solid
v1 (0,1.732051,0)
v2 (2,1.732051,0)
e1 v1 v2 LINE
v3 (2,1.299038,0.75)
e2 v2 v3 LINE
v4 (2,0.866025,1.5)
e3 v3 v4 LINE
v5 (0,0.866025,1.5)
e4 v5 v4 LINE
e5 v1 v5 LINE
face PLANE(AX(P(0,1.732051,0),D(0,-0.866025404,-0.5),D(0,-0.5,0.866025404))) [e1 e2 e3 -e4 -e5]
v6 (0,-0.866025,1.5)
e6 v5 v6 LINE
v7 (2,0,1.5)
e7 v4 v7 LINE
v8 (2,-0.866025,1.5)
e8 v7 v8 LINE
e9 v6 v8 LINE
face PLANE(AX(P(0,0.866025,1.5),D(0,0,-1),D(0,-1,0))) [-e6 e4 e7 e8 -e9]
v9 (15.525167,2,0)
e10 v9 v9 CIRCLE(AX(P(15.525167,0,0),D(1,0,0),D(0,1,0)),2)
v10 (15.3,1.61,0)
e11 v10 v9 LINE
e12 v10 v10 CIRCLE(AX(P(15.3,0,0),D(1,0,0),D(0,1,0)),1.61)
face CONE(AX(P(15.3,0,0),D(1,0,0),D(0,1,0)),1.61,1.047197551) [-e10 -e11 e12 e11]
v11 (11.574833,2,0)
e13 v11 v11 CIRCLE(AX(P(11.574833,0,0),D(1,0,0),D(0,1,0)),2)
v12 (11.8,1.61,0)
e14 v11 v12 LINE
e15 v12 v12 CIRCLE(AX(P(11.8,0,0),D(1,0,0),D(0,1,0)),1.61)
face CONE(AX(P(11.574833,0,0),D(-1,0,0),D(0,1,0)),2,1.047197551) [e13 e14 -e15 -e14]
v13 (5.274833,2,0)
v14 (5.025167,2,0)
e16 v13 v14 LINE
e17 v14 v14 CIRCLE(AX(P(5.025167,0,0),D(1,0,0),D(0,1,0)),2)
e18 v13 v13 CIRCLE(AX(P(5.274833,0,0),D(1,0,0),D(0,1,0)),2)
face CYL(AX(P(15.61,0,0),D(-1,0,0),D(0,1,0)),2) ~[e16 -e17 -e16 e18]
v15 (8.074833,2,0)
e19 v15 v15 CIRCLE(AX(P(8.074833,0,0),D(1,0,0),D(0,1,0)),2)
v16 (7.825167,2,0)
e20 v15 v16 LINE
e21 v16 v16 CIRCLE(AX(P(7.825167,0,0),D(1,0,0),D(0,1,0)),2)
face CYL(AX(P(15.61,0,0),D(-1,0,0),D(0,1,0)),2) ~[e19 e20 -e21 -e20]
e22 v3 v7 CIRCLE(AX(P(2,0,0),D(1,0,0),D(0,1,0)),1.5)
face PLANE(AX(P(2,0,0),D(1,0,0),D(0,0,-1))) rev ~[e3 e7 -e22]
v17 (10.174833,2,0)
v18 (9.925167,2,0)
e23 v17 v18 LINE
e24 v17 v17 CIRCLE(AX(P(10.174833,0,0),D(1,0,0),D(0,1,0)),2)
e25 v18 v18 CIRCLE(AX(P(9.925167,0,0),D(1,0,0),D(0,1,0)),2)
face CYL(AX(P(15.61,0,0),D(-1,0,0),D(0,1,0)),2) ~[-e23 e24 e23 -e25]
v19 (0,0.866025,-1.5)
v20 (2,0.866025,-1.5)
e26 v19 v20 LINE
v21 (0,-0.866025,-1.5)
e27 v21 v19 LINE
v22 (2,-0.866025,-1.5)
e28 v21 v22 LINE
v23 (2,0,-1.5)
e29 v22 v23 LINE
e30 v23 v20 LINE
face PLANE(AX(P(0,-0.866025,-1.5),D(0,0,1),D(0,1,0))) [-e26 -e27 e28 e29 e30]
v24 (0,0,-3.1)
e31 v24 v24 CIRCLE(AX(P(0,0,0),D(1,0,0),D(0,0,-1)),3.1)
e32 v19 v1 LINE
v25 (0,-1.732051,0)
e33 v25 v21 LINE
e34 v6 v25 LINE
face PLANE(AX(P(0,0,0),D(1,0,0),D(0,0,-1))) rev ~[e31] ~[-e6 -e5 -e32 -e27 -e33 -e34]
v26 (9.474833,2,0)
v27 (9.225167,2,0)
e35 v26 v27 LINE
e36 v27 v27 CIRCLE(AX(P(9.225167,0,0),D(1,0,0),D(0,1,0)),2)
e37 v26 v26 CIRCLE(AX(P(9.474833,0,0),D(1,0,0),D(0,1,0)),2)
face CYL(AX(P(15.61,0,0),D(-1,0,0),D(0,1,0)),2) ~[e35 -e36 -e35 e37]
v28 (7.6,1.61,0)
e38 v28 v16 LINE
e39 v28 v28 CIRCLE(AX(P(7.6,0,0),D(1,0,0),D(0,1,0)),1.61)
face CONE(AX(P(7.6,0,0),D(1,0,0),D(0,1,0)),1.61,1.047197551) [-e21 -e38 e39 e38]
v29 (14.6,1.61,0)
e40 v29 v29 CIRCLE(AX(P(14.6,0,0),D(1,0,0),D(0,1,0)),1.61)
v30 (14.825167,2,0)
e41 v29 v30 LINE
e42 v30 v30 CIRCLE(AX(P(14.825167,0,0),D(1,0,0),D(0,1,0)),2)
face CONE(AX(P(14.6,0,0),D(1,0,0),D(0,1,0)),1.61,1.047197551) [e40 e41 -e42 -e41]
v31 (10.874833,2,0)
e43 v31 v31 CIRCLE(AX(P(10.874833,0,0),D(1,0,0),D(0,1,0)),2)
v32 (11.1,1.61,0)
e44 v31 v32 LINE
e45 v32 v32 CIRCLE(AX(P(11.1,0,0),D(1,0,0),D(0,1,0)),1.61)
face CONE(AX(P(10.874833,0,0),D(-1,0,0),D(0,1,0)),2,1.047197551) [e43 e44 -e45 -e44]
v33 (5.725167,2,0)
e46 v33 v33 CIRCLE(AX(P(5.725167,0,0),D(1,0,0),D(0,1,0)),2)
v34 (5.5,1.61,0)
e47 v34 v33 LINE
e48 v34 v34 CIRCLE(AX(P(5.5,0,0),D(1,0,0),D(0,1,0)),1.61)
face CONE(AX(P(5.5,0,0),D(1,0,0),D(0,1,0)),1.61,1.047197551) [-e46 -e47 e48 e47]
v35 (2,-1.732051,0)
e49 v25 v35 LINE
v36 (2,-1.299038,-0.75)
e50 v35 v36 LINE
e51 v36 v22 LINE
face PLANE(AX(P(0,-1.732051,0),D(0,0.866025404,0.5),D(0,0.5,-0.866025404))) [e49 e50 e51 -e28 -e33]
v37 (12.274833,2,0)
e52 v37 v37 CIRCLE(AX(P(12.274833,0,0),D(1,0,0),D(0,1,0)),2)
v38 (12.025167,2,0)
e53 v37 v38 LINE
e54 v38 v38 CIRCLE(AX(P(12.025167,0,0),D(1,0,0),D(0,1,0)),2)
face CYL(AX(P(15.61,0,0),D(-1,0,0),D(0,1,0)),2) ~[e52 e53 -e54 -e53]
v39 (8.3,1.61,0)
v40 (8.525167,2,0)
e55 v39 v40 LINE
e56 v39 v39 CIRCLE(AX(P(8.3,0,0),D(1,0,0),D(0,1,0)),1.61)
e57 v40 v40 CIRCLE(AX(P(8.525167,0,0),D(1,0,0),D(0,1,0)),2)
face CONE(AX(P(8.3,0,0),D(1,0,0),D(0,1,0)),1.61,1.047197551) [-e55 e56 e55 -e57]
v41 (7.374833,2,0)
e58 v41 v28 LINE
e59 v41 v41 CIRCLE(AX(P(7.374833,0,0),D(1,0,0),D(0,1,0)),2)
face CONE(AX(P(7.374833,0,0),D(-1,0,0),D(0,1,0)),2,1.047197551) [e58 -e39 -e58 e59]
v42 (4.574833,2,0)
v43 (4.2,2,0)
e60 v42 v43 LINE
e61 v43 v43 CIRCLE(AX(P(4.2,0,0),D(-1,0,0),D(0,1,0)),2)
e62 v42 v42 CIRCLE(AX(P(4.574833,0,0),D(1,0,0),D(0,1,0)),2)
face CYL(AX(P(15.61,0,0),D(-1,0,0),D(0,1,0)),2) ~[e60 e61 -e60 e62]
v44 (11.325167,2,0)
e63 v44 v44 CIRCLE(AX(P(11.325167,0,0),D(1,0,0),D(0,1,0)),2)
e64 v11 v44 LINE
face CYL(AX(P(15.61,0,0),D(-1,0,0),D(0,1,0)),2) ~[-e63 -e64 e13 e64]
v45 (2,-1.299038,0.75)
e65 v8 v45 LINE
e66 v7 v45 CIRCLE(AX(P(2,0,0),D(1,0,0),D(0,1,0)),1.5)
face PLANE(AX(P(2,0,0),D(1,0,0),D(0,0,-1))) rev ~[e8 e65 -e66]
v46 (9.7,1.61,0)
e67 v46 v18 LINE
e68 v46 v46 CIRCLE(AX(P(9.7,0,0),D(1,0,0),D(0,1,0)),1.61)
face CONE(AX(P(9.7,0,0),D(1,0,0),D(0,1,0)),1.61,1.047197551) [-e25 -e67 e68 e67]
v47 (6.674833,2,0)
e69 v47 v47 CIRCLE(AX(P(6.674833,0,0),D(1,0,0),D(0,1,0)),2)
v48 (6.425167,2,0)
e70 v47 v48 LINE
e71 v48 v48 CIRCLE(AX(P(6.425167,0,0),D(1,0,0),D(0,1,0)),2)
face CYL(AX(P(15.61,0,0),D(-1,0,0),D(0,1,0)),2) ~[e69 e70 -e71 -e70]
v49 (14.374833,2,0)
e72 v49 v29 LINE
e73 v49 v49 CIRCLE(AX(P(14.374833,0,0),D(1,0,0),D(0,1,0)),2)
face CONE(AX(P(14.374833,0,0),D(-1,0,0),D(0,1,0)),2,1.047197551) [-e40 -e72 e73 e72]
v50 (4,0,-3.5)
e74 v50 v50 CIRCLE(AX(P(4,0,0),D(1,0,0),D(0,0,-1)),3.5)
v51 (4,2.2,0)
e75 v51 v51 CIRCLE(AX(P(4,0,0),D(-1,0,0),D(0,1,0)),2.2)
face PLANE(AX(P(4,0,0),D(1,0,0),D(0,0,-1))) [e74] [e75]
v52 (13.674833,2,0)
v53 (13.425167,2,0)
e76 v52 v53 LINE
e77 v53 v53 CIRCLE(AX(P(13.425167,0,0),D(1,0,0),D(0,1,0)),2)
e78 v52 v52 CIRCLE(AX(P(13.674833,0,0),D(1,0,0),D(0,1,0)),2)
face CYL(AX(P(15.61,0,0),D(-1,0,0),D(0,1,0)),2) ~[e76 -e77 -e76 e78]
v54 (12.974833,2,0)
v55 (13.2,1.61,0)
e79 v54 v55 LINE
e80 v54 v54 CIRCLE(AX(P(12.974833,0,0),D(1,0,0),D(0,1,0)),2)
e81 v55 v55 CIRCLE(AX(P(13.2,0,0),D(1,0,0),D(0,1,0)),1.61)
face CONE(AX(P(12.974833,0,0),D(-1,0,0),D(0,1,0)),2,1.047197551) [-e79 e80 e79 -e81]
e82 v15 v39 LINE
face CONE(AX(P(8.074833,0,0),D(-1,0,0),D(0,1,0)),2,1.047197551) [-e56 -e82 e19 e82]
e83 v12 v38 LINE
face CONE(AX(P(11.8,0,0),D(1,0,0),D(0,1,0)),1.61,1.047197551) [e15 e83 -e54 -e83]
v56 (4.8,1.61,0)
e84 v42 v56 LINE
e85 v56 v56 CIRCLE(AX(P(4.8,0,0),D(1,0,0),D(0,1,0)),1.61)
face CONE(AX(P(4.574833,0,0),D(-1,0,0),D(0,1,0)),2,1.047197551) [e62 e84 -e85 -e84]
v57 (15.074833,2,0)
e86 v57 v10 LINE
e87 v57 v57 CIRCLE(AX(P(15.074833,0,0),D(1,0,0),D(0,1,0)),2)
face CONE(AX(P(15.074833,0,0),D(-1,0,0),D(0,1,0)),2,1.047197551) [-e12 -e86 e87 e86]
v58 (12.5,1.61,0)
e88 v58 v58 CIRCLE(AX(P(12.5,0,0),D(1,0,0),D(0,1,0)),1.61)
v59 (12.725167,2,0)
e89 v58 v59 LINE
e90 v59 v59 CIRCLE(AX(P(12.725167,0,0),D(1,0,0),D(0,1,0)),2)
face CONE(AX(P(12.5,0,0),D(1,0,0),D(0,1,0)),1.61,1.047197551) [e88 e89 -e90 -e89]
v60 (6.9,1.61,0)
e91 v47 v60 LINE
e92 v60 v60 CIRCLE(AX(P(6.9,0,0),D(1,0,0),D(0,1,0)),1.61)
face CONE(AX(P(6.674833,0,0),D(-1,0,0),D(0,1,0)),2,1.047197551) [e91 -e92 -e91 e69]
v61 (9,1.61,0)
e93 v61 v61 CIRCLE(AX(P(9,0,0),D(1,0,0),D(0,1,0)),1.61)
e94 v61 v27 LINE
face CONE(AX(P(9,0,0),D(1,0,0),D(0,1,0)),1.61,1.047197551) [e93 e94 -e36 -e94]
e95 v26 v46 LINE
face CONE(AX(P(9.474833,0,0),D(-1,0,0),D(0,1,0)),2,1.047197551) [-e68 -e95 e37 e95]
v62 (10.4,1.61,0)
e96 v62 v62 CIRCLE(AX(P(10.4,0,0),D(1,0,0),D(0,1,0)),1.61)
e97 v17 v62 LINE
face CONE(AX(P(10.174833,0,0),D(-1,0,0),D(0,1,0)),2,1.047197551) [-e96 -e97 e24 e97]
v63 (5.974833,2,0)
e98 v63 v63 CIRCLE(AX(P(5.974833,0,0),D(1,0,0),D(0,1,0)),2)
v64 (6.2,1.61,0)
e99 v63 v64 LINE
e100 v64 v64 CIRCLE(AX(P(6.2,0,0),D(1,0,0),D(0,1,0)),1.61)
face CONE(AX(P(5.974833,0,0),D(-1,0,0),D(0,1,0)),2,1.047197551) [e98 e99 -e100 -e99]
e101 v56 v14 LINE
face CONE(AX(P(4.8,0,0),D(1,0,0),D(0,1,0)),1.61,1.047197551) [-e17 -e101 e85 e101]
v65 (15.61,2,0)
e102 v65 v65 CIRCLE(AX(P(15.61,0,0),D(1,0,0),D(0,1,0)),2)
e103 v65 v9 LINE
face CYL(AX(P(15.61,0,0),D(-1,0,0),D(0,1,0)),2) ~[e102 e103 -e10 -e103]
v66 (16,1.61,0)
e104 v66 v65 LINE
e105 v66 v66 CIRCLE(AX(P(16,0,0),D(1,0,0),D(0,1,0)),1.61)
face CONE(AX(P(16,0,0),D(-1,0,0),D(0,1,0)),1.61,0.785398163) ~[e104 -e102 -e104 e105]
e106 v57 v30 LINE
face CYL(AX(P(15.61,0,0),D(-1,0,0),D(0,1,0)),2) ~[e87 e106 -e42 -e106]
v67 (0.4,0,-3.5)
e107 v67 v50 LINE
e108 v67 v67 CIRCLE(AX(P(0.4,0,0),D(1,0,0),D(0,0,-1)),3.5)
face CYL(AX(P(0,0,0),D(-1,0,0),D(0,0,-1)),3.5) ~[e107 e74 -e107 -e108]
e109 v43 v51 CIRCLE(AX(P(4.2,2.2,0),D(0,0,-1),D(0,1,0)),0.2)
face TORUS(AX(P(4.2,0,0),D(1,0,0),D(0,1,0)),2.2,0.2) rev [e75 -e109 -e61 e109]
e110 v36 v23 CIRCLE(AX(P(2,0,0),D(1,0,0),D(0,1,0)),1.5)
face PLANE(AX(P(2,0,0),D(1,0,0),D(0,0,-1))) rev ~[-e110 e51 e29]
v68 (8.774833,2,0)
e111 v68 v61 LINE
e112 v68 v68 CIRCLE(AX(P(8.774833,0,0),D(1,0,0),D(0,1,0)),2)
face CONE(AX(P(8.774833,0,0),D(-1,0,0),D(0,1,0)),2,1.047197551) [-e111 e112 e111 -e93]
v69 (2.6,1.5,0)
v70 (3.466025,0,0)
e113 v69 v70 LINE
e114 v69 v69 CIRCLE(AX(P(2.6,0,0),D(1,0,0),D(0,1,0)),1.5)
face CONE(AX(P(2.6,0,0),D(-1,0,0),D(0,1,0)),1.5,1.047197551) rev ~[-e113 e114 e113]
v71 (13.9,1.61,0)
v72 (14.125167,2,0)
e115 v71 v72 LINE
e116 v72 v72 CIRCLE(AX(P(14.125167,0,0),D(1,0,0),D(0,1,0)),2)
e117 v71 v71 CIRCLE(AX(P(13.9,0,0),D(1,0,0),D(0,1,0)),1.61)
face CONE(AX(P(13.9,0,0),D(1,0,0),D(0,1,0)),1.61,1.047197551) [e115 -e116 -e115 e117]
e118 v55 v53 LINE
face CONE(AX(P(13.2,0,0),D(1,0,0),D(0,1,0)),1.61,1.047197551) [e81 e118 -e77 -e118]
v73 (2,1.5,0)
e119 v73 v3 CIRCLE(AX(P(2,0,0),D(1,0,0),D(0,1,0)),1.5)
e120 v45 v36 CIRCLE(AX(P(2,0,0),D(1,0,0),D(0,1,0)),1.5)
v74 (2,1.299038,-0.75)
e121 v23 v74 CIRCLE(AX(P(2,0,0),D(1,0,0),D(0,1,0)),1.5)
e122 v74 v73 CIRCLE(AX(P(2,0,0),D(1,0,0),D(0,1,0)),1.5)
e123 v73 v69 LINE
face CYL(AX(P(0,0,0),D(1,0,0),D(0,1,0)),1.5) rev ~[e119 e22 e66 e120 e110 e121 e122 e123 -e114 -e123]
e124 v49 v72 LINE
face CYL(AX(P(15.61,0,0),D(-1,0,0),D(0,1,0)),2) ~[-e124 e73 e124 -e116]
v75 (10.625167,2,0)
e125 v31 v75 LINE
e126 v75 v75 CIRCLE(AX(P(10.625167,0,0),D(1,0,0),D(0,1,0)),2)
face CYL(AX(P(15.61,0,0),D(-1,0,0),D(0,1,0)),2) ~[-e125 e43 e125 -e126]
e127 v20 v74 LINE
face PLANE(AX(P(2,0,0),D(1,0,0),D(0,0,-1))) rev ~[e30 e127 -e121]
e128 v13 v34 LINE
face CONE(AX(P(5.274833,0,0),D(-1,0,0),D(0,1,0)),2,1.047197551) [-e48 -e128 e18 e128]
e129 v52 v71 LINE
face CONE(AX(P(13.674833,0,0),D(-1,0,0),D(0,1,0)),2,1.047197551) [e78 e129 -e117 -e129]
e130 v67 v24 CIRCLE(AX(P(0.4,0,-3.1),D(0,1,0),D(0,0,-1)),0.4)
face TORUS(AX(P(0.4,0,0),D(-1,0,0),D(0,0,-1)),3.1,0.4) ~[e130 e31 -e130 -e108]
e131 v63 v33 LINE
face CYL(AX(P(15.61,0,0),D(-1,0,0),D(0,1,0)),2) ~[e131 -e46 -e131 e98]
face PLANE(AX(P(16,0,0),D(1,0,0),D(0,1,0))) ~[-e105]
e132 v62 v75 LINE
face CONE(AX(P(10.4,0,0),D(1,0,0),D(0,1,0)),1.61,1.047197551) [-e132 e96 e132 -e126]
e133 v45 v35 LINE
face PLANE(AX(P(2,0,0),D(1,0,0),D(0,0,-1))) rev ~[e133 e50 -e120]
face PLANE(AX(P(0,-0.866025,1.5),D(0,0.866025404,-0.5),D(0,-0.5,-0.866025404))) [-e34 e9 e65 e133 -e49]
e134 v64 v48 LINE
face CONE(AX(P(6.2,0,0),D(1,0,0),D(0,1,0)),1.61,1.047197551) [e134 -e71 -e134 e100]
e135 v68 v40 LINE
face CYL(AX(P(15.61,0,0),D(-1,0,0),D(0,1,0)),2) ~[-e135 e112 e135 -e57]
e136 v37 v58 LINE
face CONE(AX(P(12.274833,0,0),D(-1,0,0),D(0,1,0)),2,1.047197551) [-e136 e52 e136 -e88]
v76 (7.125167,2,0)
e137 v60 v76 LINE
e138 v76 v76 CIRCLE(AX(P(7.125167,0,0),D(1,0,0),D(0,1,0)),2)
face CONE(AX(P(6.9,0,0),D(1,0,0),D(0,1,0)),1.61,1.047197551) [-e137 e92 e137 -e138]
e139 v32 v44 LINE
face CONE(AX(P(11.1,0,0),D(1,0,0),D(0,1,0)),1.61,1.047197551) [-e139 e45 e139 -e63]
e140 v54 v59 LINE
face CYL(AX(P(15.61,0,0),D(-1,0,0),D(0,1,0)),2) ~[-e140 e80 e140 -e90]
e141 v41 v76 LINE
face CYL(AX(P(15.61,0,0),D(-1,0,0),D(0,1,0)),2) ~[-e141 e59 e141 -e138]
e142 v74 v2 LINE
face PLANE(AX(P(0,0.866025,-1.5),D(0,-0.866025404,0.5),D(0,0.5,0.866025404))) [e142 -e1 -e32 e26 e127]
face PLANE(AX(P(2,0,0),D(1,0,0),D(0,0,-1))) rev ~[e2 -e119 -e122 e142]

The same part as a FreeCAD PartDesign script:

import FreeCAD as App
import Part
import Sketcher
from FreeCAD import Vector
Q = App.Units.Quantity


def edges_at(feature, points):
    """Names of the edges that pass closest to the given points."""
    edges = feature.Shape.Edges
    near = lambda p: min(range(len(edges)), key=lambda i: edges[i].distToShape(Part.Vertex(*p))[0])
    return sorted({f"Edge{near(p) + 1}" for p in points})

doc = App.newDocument("Part")
body = doc.addObject("PartDesign::Body", "Body")

sketch1 = body.newObject("Sketcher::SketchObject", "Sketch")
sketch1.AttachmentSupport = (doc.getObject("YZ_Plane"), [""])
sketch1.MapMode = "FlatFace"
sketch1.addGeometry(Part.Circle(Vector(0, 0, 0), Vector(0, 0, 1), 3.5), False)
sketch1.addConstraint(Sketcher.Constraint("Coincident", 0, 3, -1, 1))
sketch1.addConstraint(Sketcher.Constraint("Diameter", 0, Q("7 mm")))
pad1 = body.newObject("PartDesign::Pad", "Pad")
pad1.Profile = sketch1
pad1.Length = 4

sketch2 = body.newObject("Sketcher::SketchObject", "Sketch001")
sketch2.AttachmentSupport = (doc.getObject("XY_Plane"), [""])
sketch2.MapMode = "FlatFace"
sketch2.addGeometry(Part.LineSegment(Vector(0, 0, 0), Vector(16, 0, 0)), False)
sketch2.addGeometry(Part.LineSegment(Vector(16, 0, 0), Vector(16, 1.6, 0)), False)
sketch2.addGeometry(Part.LineSegment(Vector(16, 1.6, 0), Vector(15.6, 2, 0)), False)
sketch2.addGeometry(Part.LineSegment(Vector(15.6, 2, 0), Vector(0, 2, 0)), False)
sketch2.addGeometry(Part.LineSegment(Vector(0, 2, 0), Vector(0, 0, 0)), False)
sketch2.addConstraint(Sketcher.Constraint("Coincident", 0, 2, 1, 1))
sketch2.addConstraint(Sketcher.Constraint("Coincident", 1, 2, 2, 1))
sketch2.addConstraint(Sketcher.Constraint("Coincident", 2, 2, 3, 1))
sketch2.addConstraint(Sketcher.Constraint("Coincident", 3, 2, 4, 1))
sketch2.addConstraint(Sketcher.Constraint("Coincident", 4, 2, 0, 1))
sketch2.addConstraint(Sketcher.Constraint("Horizontal", 0))
sketch2.addConstraint(Sketcher.Constraint("Vertical", 1))
sketch2.addConstraint(Sketcher.Constraint("Horizontal", 3))
sketch2.addConstraint(Sketcher.Constraint("Vertical", 4))
sketch2.addConstraint(Sketcher.Constraint("Coincident", 4, 2, -1, 1))
sketch2.addConstraint(Sketcher.Constraint("DistanceX", 0, 1, 0, 2, Q("16 mm")))
sketch2.addConstraint(Sketcher.Constraint("DistanceY", 4, 2, 4, 1, Q("2 mm")))
sketch2.addConstraint(Sketcher.Constraint("Angle", 2, Q("135 deg")))
sketch2.addConstraint(Sketcher.Constraint("DistanceX", 3, 2, 3, 1, Q("15.61 mm")))
revolution = body.newObject("PartDesign::Revolution", "Revolution")
revolution.Profile = sketch2
revolution.ReferenceAxis = (sketch2, ["H_Axis"])
revolution.Angle = 360

sketch3 = body.newObject("Sketcher::SketchObject", "Sketch002")
sketch3.AttachmentSupport = (doc.getObject("YZ_Plane"), [""])
sketch3.MapMode = "FlatFace"
sketch3.addGeometry(Part.LineSegment(Vector(1.7, 0, 0), Vector(0.9, 1.5, 0)), False)
sketch3.addGeometry(Part.LineSegment(Vector(0.9, 1.5, 0), Vector(-0.9, 1.5, 0)), False)
sketch3.addGeometry(Part.LineSegment(Vector(-0.9, 1.5, 0), Vector(-1.7, 0, 0)), False)
sketch3.addGeometry(Part.LineSegment(Vector(-1.7, 0, 0), Vector(-0.9, -1.5, 0)), False)
sketch3.addGeometry(Part.LineSegment(Vector(-0.9, -1.5, 0), Vector(0.9, -1.5, 0)), False)
sketch3.addGeometry(Part.LineSegment(Vector(0.9, -1.5, 0), Vector(1.7, 0, 0)), False)
sketch3.addConstraint(Sketcher.Constraint("Coincident", 0, 2, 1, 1))
sketch3.addConstraint(Sketcher.Constraint("Coincident", 1, 2, 2, 1))
sketch3.addConstraint(Sketcher.Constraint("Coincident", 2, 2, 3, 1))
sketch3.addConstraint(Sketcher.Constraint("Coincident", 3, 2, 4, 1))
sketch3.addConstraint(Sketcher.Constraint("Coincident", 4, 2, 5, 1))
sketch3.addConstraint(Sketcher.Constraint("Coincident", 5, 2, 0, 1))
sketch3.addConstraint(Sketcher.Constraint("Horizontal", 1))
sketch3.addConstraint(Sketcher.Constraint("Horizontal", 4))
sketch3.addConstraint(Sketcher.Constraint("Symmetric", 0, 2, 3, 2, -1, 1))
sketch3.addConstraint(Sketcher.Constraint("Symmetric", 2, 2, 5, 2, -1, 1))
sketch3.addConstraint(Sketcher.Constraint("PointOnObject", 2, 2, -1))
sketch3.addConstraint(Sketcher.Constraint("Parallel", 2, 5))
sketch3.addConstraint(Sketcher.Constraint("Vertical", 1, 2, 3, 2))
sketch3.addConstraint(Sketcher.Constraint("Angle", 0, Q("120 deg")))
sketch3.addConstraint(Sketcher.Constraint("DistanceY", 3, 2, 1, 2, Q("3 mm")))
sketch3.addConstraint(Sketcher.Constraint("DistanceX", 1, 2, 1, 1, Q("1.732051 mm")))
pocket1 = body.newObject("PartDesign::Pocket", "Pocket")
pocket1.Profile = sketch3
pocket1.Length = 2
pocket1.Reversed = True

sketch4 = body.newObject("Sketcher::SketchObject", "Sketch003")
sketch4.AttachmentSupport = (doc.getObject("XY_Plane"), [""])
sketch4.MapMode = "FlatFace"
sketch4.addGeometry(Part.LineSegment(Vector(2.6, 1.5, 0), Vector(0, 1.5, 0)), False)
sketch4.addGeometry(Part.LineSegment(Vector(0, 1.5, 0), Vector(0, 0, 0)), False)
sketch4.addGeometry(Part.LineSegment(Vector(0, 0, 0), Vector(3.5, 0, 0)), False)
sketch4.addGeometry(Part.LineSegment(Vector(3.5, 0, 0), Vector(2.6, 1.5, 0)), False)
sketch4.addConstraint(Sketcher.Constraint("Coincident", 0, 2, 1, 1))
sketch4.addConstraint(Sketcher.Constraint("Coincident", 1, 2, 2, 1))
sketch4.addConstraint(Sketcher.Constraint("Coincident", 2, 2, 3, 1))
sketch4.addConstraint(Sketcher.Constraint("Coincident", 3, 2, 0, 1))
sketch4.addConstraint(Sketcher.Constraint("Horizontal", 0))
sketch4.addConstraint(Sketcher.Constraint("Vertical", 1))
sketch4.addConstraint(Sketcher.Constraint("Horizontal", 2))
sketch4.addConstraint(Sketcher.Constraint("Coincident", 1, 2, -1, 1))
sketch4.addConstraint(Sketcher.Constraint("Angle", 3, Q("120 deg")))
sketch4.addConstraint(Sketcher.Constraint("DistanceX", 0, 2, 0, 1, Q("2.6 mm")))
sketch4.addConstraint(Sketcher.Constraint("DistanceY", 1, 2, 1, 1, Q("1.5 mm")))
groove = body.newObject("PartDesign::Groove", "Groove")
groove.Profile = sketch4
groove.ReferenceAxis = (sketch4, ["H_Axis"])
groove.Angle = 360
doc.recompute()

fillet = body.newObject("PartDesign::Fillet", "Fillet")
fillet.Base = (groove, edges_at(groove, [(4, -2, 0)]))
fillet.Radius = 0.2
doc.recompute()

fillet2 = body.newObject("PartDesign::Fillet", "Fillet001")
fillet2.Base = (fillet, edges_at(fillet, [(0, 0, 3.5)]))
fillet2.Radius = 0.4

sketch5 = body.newObject("Sketcher::SketchObject", "Sketch004")
sketch5.AttachmentSupport = (doc.getObject("XY_Plane"), [""])
sketch5.MapMode = "FlatFace"
sketch5.addGeometry(Part.LineSegment(Vector(15.07, 2.45, 0), Vector(15.07, 2, 0)), False)
sketch5.addGeometry(Part.LineSegment(Vector(15.07, 2, 0), Vector(15.3, 1.61, 0)), False)
sketch5.addGeometry(Part.LineSegment(Vector(15.3, 1.61, 0), Vector(15.53, 2, 0)), False)
sketch5.addGeometry(Part.LineSegment(Vector(15.53, 2, 0), Vector(15.53, 2.45, 0)), False)
sketch5.addGeometry(Part.LineSegment(Vector(15.53, 2.45, 0), Vector(15.07, 2.45, 0)), False)
sketch5.addConstraint(Sketcher.Constraint("Coincident", 0, 2, 1, 1))
sketch5.addConstraint(Sketcher.Constraint("Coincident", 1, 2, 2, 1))
sketch5.addConstraint(Sketcher.Constraint("Coincident", 2, 2, 3, 1))
sketch5.addConstraint(Sketcher.Constraint("Coincident", 3, 2, 4, 1))
sketch5.addConstraint(Sketcher.Constraint("Coincident", 4, 2, 0, 1))
sketch5.addConstraint(Sketcher.Constraint("Vertical", 0))
sketch5.addConstraint(Sketcher.Constraint("Vertical", 3))
sketch5.addConstraint(Sketcher.Constraint("Horizontal", 4))
sketch5.addConstraint(Sketcher.Constraint("Horizontal", 0, 2, 2, 2))
sketch5.addConstraint(Sketcher.Constraint("Equal", 4, 0))
sketch5.addConstraint(Sketcher.Constraint("Equal", 1, 2))
sketch5.addConstraint(Sketcher.Constraint("Angle", 1, Q("-60 deg")))
sketch5.addConstraint(Sketcher.Constraint("DistanceY", -1, 1, 0, 2, Q("2 mm")))
sketch5.addConstraint(Sketcher.Constraint("DistanceX", -1, 1, 1, 2, Q("15.3 mm")))
sketch5.addConstraint(Sketcher.Constraint("DistanceY", -1, 1, 1, 2, Q("1.61 mm")))
groove2 = body.newObject("PartDesign::Groove", "Groove001")
groove2.Profile = sketch5
groove2.ReferenceAxis = (sketch5, ["H_Axis"])
groove2.Angle = 360
doc.recompute()

linearpattern = body.newObject("PartDesign::LinearPattern", "LinearPattern")
linearpattern.Originals = [groove2]
linearpattern.Direction = (doc.getObject("X_Axis"), [""])
linearpattern.Mode = "offset"
linearpattern.Offset = 0.7
linearpattern.Occurrences = 16
linearpattern.Reversed = True
body.Tip = linearpattern

doc.recompute()
